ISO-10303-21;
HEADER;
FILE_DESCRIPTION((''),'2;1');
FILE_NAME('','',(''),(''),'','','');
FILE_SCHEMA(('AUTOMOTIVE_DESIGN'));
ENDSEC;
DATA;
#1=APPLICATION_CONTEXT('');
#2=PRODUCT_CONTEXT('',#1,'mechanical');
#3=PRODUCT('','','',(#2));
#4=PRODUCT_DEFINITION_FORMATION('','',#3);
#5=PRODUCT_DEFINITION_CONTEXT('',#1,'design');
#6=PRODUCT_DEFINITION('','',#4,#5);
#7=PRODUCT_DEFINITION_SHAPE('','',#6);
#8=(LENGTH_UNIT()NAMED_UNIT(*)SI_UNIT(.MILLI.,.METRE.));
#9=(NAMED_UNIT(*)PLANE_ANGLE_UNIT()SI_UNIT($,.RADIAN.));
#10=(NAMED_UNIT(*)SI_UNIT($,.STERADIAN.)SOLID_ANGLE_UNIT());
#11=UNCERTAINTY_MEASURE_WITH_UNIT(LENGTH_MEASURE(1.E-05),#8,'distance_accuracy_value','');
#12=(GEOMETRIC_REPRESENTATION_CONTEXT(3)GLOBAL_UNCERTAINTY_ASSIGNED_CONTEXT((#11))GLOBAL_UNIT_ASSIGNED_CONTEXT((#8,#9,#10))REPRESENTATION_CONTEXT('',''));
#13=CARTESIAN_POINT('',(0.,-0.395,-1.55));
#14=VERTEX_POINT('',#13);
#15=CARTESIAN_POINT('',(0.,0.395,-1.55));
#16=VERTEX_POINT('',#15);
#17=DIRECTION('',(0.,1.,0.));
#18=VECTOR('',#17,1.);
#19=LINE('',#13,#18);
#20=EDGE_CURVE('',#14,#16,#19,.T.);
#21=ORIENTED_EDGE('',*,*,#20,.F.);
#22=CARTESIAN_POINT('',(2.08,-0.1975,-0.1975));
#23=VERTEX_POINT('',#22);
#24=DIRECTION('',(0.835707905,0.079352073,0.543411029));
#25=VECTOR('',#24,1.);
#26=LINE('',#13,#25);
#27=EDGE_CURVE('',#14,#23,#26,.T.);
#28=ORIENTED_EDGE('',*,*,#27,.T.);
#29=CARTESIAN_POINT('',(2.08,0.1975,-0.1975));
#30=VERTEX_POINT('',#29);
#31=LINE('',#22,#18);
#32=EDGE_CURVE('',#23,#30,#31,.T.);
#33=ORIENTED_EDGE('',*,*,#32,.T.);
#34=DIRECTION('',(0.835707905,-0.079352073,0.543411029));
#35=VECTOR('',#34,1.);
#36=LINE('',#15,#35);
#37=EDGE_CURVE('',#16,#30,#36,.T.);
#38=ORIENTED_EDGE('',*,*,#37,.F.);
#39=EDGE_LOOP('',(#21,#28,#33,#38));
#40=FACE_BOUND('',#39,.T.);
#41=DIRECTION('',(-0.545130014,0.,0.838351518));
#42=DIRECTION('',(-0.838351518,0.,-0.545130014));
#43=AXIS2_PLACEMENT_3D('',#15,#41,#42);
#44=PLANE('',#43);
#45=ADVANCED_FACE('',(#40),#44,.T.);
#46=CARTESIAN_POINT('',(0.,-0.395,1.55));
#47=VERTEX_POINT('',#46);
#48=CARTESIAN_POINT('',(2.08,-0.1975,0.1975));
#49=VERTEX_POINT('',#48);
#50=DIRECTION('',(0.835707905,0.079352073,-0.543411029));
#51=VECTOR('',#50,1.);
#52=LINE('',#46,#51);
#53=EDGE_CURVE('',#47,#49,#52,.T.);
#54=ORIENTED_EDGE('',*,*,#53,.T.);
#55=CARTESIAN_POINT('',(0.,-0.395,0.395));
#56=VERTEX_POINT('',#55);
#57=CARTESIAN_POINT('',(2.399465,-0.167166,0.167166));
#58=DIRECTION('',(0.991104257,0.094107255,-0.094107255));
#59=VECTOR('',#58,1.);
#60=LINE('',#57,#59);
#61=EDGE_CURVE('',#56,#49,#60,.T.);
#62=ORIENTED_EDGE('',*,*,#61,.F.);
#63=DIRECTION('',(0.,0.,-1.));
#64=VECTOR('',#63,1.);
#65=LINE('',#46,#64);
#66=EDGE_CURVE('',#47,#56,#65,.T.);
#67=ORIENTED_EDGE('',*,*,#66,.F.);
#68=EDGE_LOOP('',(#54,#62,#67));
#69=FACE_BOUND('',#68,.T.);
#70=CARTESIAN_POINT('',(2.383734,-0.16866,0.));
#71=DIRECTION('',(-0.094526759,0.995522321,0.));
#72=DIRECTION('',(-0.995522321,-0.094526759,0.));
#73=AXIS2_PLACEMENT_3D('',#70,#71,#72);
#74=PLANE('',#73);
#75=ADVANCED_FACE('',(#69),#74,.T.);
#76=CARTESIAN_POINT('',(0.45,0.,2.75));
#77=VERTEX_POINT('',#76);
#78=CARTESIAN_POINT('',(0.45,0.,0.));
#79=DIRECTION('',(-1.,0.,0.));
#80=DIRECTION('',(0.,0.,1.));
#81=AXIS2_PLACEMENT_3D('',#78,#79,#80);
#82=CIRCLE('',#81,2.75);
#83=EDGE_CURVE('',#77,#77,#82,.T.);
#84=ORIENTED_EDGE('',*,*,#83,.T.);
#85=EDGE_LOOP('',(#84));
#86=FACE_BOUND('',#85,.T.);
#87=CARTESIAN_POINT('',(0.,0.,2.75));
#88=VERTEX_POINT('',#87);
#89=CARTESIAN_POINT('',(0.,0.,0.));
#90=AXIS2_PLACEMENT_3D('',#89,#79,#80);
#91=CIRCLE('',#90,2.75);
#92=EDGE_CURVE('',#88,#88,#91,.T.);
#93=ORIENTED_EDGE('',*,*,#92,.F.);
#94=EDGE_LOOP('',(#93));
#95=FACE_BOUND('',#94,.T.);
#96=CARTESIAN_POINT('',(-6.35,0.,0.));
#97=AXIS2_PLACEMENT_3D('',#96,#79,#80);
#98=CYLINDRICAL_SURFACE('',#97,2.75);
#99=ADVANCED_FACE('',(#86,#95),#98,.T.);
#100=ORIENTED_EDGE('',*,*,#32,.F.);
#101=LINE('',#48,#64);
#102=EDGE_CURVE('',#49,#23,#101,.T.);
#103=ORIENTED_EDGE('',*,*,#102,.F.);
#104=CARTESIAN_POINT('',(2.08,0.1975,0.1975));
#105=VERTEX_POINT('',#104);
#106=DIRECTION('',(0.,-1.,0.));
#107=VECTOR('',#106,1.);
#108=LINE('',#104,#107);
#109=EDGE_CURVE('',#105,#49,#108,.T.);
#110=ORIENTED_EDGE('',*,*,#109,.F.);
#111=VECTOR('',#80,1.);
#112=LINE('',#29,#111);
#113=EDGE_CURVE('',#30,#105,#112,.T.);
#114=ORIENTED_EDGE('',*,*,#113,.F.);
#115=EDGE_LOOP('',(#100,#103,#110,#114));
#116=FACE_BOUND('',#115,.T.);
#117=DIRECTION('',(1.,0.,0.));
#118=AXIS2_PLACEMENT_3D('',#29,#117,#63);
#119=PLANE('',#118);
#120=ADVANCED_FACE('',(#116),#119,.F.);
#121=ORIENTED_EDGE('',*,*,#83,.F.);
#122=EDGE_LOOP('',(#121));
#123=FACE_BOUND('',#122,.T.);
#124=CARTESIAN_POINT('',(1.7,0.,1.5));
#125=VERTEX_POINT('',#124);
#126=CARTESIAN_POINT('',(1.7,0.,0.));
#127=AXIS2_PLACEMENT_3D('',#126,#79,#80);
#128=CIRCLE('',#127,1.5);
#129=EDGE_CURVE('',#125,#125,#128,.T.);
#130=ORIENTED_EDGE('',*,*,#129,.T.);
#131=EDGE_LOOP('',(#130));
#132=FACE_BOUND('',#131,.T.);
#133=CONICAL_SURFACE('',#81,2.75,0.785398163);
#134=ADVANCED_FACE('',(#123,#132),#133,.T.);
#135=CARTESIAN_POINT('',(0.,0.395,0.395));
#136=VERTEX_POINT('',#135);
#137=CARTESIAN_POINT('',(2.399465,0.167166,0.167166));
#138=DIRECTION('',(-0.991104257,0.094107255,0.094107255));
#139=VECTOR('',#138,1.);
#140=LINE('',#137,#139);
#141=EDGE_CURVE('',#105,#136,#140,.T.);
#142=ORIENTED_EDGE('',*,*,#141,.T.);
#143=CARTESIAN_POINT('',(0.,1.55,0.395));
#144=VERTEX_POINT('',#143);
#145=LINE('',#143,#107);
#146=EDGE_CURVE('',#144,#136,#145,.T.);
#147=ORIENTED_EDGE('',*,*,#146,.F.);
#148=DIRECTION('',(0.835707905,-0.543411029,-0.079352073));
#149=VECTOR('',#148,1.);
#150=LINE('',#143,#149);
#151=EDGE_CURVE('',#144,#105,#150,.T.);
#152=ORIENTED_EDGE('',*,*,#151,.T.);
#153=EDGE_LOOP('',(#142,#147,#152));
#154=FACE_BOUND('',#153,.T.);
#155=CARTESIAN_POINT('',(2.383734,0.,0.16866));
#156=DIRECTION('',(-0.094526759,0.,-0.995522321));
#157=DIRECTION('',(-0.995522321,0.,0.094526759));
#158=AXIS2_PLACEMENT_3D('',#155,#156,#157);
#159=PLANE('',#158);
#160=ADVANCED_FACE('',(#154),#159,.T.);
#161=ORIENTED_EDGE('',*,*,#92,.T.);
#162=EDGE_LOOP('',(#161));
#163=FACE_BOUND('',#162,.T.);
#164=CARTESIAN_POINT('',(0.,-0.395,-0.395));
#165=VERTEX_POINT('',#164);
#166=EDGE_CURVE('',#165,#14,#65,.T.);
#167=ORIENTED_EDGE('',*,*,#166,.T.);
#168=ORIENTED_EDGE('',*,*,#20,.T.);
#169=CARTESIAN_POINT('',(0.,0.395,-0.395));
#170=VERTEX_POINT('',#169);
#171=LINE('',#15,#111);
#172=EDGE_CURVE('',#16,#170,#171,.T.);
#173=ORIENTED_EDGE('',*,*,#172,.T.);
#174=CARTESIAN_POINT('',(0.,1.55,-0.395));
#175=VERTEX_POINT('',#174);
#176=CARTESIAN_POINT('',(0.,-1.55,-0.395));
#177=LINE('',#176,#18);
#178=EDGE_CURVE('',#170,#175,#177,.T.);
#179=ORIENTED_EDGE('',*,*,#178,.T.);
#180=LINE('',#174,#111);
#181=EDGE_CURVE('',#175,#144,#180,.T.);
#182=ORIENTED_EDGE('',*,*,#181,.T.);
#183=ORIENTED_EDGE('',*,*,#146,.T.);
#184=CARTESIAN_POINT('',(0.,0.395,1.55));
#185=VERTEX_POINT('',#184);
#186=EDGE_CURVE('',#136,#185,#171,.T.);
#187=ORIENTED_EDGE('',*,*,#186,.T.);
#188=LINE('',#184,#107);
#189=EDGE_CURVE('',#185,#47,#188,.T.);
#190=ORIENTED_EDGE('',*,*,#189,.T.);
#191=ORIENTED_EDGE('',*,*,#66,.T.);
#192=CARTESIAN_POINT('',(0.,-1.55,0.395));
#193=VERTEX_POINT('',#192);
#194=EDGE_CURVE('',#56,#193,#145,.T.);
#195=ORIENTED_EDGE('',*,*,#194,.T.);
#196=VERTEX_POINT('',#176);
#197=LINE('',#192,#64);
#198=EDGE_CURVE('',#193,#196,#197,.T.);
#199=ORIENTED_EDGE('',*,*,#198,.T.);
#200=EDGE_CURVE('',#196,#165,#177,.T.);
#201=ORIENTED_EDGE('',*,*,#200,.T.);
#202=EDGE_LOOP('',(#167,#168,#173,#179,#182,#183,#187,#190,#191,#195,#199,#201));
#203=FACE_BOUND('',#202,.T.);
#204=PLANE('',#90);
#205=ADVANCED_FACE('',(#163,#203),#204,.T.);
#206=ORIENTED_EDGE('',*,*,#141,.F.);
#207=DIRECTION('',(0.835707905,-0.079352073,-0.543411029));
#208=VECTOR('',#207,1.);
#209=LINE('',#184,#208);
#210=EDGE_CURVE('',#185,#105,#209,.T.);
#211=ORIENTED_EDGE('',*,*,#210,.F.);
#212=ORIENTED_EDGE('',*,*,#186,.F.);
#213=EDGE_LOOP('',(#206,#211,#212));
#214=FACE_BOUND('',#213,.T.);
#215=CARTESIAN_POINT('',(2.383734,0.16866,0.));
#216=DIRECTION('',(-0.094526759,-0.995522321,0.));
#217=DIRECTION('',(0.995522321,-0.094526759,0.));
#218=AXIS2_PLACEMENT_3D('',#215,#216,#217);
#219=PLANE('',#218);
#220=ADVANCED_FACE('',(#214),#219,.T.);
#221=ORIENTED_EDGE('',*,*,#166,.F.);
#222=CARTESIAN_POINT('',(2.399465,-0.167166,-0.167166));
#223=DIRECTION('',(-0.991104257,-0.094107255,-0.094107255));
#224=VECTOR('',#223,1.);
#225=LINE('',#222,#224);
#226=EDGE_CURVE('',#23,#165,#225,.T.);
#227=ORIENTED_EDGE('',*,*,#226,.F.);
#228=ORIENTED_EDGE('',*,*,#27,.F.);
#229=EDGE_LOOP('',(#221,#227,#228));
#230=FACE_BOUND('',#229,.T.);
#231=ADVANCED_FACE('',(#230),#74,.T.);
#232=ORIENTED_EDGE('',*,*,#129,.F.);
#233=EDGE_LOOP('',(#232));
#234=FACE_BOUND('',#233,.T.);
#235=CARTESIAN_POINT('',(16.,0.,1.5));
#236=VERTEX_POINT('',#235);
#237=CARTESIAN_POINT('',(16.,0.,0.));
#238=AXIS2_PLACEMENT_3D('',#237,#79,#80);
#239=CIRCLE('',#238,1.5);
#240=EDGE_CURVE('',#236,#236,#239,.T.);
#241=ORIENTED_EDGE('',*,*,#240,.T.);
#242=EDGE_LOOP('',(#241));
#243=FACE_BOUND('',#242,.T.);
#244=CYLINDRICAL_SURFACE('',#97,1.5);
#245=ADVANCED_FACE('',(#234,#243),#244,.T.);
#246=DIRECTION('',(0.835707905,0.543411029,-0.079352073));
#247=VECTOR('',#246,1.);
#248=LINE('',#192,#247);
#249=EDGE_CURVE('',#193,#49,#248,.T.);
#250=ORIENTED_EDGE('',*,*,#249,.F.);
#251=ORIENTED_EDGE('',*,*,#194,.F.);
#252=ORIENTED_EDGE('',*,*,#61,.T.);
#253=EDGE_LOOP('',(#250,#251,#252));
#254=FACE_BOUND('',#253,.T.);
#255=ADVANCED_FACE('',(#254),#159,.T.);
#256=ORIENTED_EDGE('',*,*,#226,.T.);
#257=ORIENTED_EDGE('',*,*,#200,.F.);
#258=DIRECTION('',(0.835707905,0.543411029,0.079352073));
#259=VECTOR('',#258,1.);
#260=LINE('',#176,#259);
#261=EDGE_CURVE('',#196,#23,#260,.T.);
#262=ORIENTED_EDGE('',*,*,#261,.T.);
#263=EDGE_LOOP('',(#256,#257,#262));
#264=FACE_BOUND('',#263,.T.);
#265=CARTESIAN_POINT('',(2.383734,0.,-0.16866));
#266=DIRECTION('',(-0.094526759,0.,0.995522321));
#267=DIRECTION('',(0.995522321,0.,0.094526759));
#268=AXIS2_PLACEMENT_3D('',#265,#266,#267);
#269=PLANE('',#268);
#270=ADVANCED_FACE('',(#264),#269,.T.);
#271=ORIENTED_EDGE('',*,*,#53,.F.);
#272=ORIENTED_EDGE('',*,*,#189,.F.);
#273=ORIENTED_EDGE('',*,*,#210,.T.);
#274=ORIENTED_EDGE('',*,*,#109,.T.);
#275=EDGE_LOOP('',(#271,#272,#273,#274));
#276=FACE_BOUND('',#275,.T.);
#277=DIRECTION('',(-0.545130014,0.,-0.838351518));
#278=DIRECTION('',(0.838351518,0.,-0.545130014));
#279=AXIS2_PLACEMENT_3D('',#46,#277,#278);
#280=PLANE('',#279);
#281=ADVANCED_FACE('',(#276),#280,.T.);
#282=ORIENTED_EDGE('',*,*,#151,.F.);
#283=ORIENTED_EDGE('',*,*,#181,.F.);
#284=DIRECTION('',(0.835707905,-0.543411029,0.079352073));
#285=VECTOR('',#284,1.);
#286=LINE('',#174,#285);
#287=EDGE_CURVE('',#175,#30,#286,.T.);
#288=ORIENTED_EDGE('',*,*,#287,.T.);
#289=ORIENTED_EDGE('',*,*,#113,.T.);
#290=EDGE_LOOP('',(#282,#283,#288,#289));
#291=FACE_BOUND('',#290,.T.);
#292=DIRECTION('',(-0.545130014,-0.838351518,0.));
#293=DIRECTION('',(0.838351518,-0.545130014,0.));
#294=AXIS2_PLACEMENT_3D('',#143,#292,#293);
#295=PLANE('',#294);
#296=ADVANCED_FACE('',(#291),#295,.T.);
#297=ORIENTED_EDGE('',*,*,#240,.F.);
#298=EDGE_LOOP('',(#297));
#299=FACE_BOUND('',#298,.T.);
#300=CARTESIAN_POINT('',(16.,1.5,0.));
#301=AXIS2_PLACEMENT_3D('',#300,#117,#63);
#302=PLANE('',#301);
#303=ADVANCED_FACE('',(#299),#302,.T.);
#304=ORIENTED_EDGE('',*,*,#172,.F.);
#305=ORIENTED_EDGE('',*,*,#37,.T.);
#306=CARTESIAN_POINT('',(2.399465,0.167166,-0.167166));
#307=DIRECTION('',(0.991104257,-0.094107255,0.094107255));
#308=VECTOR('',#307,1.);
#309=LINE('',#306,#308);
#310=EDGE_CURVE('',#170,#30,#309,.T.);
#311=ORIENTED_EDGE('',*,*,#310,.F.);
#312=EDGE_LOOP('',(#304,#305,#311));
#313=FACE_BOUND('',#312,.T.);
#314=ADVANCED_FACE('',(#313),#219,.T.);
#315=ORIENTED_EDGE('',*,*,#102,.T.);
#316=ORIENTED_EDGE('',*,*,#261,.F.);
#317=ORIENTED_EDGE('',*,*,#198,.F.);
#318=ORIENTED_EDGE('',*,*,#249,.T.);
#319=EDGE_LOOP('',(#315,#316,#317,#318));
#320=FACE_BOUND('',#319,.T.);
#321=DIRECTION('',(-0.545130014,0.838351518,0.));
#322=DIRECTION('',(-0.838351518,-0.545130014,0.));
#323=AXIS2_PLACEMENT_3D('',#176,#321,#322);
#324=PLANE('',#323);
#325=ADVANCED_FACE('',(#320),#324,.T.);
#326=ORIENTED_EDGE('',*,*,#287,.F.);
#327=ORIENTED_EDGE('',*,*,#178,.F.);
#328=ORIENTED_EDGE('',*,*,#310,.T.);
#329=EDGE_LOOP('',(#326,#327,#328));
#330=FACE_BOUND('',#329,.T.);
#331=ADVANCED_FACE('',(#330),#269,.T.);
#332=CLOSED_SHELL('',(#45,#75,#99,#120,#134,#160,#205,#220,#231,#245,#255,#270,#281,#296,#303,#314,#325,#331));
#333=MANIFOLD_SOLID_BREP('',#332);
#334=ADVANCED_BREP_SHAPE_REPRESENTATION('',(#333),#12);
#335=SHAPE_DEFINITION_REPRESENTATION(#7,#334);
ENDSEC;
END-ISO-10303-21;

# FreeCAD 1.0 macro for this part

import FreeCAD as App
import Part
import Sketcher
from FreeCAD import Vector
Q = App.Units.Quantity

doc = App.newDocument("Part")
body = doc.addObject("PartDesign::Body", "Body")

# Sketch on XY plane
sketch1 = body.newObject("Sketcher::SketchObject", "Sketch")
sketch1.AttachmentSupport = (doc.getObject("XY_Plane"), [""])
sketch1.MapMode = "FlatFace"
sketch1.addGeometry([
    Part.LineSegment(Vector(0, 2.75, 0), Vector(0, 0, 0)),  # 0
    Part.LineSegment(Vector(0, 0, 0), Vector(16, 0, 0)),  # 1
    Part.LineSegment(Vector(16, 0, 0), Vector(16, 1.5, 0)),  # 2
    Part.LineSegment(Vector(16, 1.5, 0), Vector(1.7, 1.5, 0)),  # 3
    Part.LineSegment(Vector(1.7, 1.5, 0), Vector(0.45, 2.75, 0)),  # 4
    Part.LineSegment(Vector(0.45, 2.75, 0), Vector(0, 2.75, 0)),  # 5
], False)
sketch1.addConstraint([
    Sketcher.Constraint("Coincident", 0, 2, 1, 1),
    Sketcher.Constraint("Coincident", 1, 2, 2, 1),
    Sketcher.Constraint("Coincident", 2, 2, 3, 1),
    Sketcher.Constraint("Coincident", 3, 2, 4, 1),
    Sketcher.Constraint("Coincident", 4, 2, 5, 1),
    Sketcher.Constraint("Coincident", 5, 2, 0, 1),
    Sketcher.Constraint("Vertical", 0),
    Sketcher.Constraint("Horizontal", 1),
    Sketcher.Constraint("Vertical", 2),
    Sketcher.Constraint("Horizontal", 3),
    Sketcher.Constraint("Horizontal", 5),
    Sketcher.Constraint("Coincident", 0, 2, -1, 1),
    Sketcher.Constraint("DistanceX", 1, 1, 1, 2, Q("16 mm")),
    Sketcher.Constraint("Angle", 4, Q("135 deg")),
    Sketcher.Constraint("DistanceX", 3, 2, 3, 1, Q("14.3 mm")),
    Sketcher.Constraint("DistanceY", 2, 1, 2, 2, Q("1.5 mm")),
    Sketcher.Constraint("DistanceX", 5, 2, 5, 1, Q("0.45 mm")),
])
revolution = body.newObject("PartDesign::Revolution", "Revolution")
revolution.Profile = sketch1
revolution.ReferenceAxis = (sketch1, ["H_Axis"])
revolution.Angle = 360

# Sketch on YZ plane
sketch2 = body.newObject("Sketcher::SketchObject", "Sketch001")
sketch2.AttachmentSupport = (doc.getObject("YZ_Plane"), [""])
sketch2.MapMode = "FlatFace"
sketch2.addGeometry([
    Part.LineSegment(Vector(1.55, -0.395, 0), Vector(-1.55, -0.395, 0)),
    Part.LineSegment(Vector(-1.55, -0.395, 0), Vector(-1.55, 0.395, 0)),
    Part.LineSegment(Vector(-1.55, 0.395, 0), Vector(1.55, 0.395, 0)),
    Part.LineSegment(Vector(1.55, 0.395, 0), Vector(1.55, -0.395, 0)),
], False)
sketch2.addConstraint([
    Sketcher.Constraint("Coincident", 0, 2, 1, 1),
    Sketcher.Constraint("Coincident", 1, 2, 2, 1),
    Sketcher.Constraint("Coincident", 2, 2, 3, 1),
    Sketcher.Constraint("Coincident", 3, 2, 0, 1),
    Sketcher.Constraint("Horizontal", 0),
    Sketcher.Constraint("Vertical", 1),
    Sketcher.Constraint("Horizontal", 2),
    Sketcher.Constraint("Vertical", 3),
    Sketcher.Constraint("Symmetric", 0, 2, 2, 2, -1, 1),
    Sketcher.Constraint("DistanceX", 0, 2, 0, 1, Q("3.1 mm")),
    Sketcher.Constraint("DistanceY", 1, 1, 1, 2, Q("0.79 mm")),
])

# Sketch on YZ plane
sketch3 = body.newObject("Sketcher::SketchObject", "Sketch002")
sketch3.AttachmentSupport = (doc.getObject("YZ_Plane"), [""])
sketch3.MapMode = "FlatFace"
sketch3.AttachmentOffset = App.Placement(Vector(0, 0, 2.08), App.Rotation())
sketch3.addGeometry([
    Part.LineSegment(Vector(0.1975, -0.1975, 0), Vector(-0.1975, -0.1975, 0)),
    Part.LineSegment(Vector(-0.1975, -0.1975, 0), Vector(-0.1975, 0.1975, 0)),
    Part.LineSegment(Vector(-0.1975, 0.1975, 0), Vector(0.1975, 0.1975, 0)),
    Part.LineSegment(Vector(0.1975, 0.1975, 0), Vector(0.1975, -0.1975, 0)),
], False)
sketch3.addConstraint([
    Sketcher.Constraint("Coincident", 0, 2, 1, 1),
    Sketcher.Constraint("Coincident", 1, 2, 2, 1),
    Sketcher.Constraint("Coincident", 2, 2, 3, 1),
    Sketcher.Constraint("Coincident", 3, 2, 0, 1),
    Sketcher.Constraint("Horizontal", 0),
    Sketcher.Constraint("Vertical", 1),
    Sketcher.Constraint("Horizontal", 2),
    Sketcher.Constraint("Vertical", 3),
    Sketcher.Constraint("Symmetric", 0, 2, 2, 2, -1, 1),
    Sketcher.Constraint("Equal", 2, 1),
    Sketcher.Constraint("DistanceX", 0, 2, 0, 1, Q("0.395 mm")),
])

subtractiveloft = body.newObject("PartDesign::SubtractiveLoft", "SubtractiveLoft")
subtractiveloft.Profile = sketch2
subtractiveloft.Sections = [sketch3]
doc.recompute()

polarpattern = body.newObject("PartDesign::PolarPattern", "PolarPattern")
polarpattern.Originals = [subtractiveloft]
polarpattern.Axis = (doc.getObject("X_Axis"), [""])
polarpattern.Angle = 90
polarpattern.Occurrences = 2
body.Tip = polarpattern

doc.recompute()
